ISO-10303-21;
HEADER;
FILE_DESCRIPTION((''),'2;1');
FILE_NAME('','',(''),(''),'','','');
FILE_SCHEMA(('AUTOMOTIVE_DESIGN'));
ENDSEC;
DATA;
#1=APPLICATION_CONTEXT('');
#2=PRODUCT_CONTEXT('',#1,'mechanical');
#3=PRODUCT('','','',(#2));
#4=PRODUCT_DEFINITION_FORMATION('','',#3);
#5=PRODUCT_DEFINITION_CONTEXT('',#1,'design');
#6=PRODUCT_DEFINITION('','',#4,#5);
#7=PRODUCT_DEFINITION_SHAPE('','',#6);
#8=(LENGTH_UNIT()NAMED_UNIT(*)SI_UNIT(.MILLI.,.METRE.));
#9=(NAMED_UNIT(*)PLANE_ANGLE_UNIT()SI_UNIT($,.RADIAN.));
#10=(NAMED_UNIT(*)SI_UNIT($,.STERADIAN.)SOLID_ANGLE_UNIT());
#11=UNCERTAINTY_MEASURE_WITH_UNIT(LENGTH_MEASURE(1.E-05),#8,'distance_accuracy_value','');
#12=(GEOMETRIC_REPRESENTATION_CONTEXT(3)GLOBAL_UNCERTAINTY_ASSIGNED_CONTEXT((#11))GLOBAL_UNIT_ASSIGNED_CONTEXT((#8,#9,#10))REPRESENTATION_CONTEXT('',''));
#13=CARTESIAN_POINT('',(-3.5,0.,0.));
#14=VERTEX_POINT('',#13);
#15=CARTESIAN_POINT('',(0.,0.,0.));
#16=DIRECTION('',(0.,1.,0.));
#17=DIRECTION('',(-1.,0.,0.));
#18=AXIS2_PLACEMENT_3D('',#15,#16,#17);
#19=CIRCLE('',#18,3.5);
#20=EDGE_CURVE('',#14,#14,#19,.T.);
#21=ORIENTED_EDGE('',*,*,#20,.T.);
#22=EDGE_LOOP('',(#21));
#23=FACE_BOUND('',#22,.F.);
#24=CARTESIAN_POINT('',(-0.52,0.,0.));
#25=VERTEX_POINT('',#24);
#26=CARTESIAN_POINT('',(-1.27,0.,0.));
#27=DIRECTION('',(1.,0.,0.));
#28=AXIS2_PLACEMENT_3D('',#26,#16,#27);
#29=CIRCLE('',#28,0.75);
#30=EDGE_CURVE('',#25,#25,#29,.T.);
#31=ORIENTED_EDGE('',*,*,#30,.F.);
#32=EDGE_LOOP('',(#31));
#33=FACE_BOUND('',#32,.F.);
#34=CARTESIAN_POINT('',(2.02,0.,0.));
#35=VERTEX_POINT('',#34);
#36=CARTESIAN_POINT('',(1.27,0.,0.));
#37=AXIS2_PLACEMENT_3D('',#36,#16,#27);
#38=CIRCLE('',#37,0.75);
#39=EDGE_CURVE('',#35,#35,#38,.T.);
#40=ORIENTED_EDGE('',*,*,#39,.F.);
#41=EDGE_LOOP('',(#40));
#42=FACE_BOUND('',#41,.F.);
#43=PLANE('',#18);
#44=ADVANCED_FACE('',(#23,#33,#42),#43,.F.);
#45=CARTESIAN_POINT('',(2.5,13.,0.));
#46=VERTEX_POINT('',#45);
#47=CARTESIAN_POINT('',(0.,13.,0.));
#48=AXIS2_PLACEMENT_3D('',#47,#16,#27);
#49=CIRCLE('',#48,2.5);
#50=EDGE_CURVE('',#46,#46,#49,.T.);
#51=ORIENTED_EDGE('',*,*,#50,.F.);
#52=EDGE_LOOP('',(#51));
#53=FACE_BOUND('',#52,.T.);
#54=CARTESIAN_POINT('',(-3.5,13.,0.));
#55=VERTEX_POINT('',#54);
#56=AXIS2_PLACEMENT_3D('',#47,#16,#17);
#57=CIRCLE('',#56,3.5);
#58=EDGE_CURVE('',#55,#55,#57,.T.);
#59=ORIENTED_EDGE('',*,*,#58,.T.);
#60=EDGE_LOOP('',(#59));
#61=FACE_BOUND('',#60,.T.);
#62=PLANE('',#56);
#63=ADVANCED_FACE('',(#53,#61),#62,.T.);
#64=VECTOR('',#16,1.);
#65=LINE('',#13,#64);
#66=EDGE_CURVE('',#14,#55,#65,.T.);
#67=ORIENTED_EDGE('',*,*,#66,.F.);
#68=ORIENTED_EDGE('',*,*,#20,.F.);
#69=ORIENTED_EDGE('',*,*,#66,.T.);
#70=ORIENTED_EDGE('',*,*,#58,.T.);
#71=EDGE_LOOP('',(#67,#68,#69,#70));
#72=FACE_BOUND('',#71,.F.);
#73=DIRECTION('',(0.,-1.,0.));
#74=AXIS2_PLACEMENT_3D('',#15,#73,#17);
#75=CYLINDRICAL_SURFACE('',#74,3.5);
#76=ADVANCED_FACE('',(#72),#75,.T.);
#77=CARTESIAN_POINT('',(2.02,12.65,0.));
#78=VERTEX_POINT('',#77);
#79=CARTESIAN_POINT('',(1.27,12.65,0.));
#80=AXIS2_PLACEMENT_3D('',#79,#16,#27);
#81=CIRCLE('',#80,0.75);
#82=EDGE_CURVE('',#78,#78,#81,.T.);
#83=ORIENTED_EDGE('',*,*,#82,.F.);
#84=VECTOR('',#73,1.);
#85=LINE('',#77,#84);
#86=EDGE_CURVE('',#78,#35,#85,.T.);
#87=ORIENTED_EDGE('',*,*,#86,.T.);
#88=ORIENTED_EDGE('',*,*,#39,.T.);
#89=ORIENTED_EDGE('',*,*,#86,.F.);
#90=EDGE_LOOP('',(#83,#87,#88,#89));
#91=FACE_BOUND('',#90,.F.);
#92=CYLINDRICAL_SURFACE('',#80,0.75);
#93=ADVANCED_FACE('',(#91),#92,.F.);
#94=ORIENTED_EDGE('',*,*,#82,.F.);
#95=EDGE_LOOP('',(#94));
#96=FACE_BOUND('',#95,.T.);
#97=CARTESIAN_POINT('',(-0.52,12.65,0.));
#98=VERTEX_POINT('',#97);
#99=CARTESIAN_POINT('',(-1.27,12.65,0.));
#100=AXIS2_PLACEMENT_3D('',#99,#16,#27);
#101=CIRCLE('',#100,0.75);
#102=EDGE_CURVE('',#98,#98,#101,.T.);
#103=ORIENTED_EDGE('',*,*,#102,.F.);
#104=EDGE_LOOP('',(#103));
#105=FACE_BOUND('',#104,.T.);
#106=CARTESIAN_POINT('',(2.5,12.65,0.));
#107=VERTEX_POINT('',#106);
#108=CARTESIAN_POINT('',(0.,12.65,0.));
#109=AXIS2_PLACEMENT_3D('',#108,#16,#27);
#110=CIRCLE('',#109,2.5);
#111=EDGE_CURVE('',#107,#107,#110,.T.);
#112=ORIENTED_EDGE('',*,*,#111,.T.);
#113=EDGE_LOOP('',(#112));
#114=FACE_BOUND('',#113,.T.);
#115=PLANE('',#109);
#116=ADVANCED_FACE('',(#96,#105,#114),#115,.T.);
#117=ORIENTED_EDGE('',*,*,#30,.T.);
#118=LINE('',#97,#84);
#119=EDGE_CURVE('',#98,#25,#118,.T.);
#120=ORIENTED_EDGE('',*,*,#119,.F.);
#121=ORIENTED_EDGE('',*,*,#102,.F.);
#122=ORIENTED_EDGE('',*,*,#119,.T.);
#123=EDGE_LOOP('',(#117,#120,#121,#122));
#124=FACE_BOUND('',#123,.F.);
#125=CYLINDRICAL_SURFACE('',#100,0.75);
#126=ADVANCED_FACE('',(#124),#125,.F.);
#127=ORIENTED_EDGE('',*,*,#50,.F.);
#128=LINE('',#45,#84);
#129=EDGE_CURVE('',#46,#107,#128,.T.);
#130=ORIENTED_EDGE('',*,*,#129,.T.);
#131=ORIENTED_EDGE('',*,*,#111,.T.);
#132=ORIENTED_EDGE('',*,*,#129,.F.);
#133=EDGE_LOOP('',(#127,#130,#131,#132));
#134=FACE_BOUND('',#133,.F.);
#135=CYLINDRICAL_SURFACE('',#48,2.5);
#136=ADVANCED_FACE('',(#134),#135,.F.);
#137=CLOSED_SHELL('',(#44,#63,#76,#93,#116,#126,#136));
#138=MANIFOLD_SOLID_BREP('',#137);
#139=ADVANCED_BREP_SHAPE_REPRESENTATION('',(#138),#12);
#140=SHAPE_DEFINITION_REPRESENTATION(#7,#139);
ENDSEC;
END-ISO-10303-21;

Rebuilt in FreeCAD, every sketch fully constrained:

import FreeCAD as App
import Part
import Sketcher

doc = App.newDocument("Part")
params = doc.addObject("Spreadsheet::Sheet", "Params")
for row, (alias, value) in enumerate([
    ("sketch1_diameter", "7 mm"),
    ("pad1_length", "13 mm"),
    ("sketch2_diameter", "5 mm"),
    ("pocket1_length", "0.35 mm"),
    ("sketch3_diameter", "1.5 mm"),
], start=1):
    params.set(f"A{row}", alias)
    params.set(f"B{row}", "=" + value)
    params.setAlias(f"B{row}", alias)

body = doc.addObject("PartDesign::Body", "Body")

# Sketch on XZ plane
sketch1 = body.newObject("Sketcher::SketchObject", "Sketch")
sketch1.AttachmentSupport = (doc.getObject("XZ_Plane"), [""])
sketch1.MapMode = "FlatFace"
sketch1.addGeometry(Part.Circle(App.Vector(0, 0, 0), App.Vector(0, 0, 1), 3.5), False)
sketch1.addConstraint(Sketcher.Constraint("Coincident", 0, 3, -1, 1))
sketch1.addConstraint(Sketcher.Constraint("Diameter", 0, 7.0))
sketch1.setExpression("Constraints[1]", "Params.sketch1_diameter")
pad1 = body.newObject("PartDesign::Pad", "Pad")
pad1.Profile = sketch1
pad1.setExpression("Length", "Params.pad1_length")
pad1.Reversed = True

# Sketch on XZ plane
sketch2 = body.newObject("Sketcher::SketchObject", "Sketch001")
sketch2.AttachmentSupport = (doc.getObject("XZ_Plane"), [""])
sketch2.MapMode = "FlatFace"
sketch2.AttachmentOffset = App.Placement(App.Vector(0, 0, -13), App.Rotation())
sketch2.addGeometry(Part.Circle(App.Vector(0, 0, 0), App.Vector(0, 0, 1), 2.5), False)
sketch2.addConstraint(Sketcher.Constraint("Coincident", 0, 3, -1, 1))
sketch2.addConstraint(Sketcher.Constraint("Diameter", 0, 5.0))
sketch2.setExpression("Constraints[1]", "Params.sketch2_diameter")
pocket1 = body.newObject("PartDesign::Pocket", "Pocket")
pocket1.Profile = sketch2
pocket1.setExpression("Length", "Params.pocket1_length")
pocket1.Reversed = True

# Sketch on XZ plane
sketch3 = body.newObject("Sketcher::SketchObject", "Sketch002")
sketch3.AttachmentSupport = (doc.getObject("XZ_Plane"), [""])
sketch3.MapMode = "FlatFace"
sketch3.AttachmentOffset = App.Placement(App.Vector(0, 0, -12.65), App.Rotation())
sketch3.addGeometry(Part.Circle(App.Vector(-1.27, 0, 0), App.Vector(0, 0, 1), 0.75), False)
sketch3.addGeometry(Part.Circle(App.Vector(1.27, 0, 0), App.Vector(0, 0, 1), 0.75), False)
sketch3.addConstraint(Sketcher.Constraint("Equal", 0, 1))
sketch3.addConstraint(Sketcher.Constraint("Symmetric", 0, 3, 1, 3, -1, 1))
sketch3.addConstraint(Sketcher.Constraint("PointOnObject", 0, 3, -1))
sketch3.addConstraint(Sketcher.Constraint("Diameter", 0, 1.5))
sketch3.addConstraint(Sketcher.Constraint("DistanceX", 0, 3, 1, 3, 2.54))
sketch3.setExpression("Constraints[3]", "Params.sketch3_diameter")
pocket2 = body.newObject("PartDesign::Pocket", "Pocket001")
pocket2.Profile = sketch3
pocket2.Type = "ThroughAll"
pocket2.Reversed = True

doc.recompute()
